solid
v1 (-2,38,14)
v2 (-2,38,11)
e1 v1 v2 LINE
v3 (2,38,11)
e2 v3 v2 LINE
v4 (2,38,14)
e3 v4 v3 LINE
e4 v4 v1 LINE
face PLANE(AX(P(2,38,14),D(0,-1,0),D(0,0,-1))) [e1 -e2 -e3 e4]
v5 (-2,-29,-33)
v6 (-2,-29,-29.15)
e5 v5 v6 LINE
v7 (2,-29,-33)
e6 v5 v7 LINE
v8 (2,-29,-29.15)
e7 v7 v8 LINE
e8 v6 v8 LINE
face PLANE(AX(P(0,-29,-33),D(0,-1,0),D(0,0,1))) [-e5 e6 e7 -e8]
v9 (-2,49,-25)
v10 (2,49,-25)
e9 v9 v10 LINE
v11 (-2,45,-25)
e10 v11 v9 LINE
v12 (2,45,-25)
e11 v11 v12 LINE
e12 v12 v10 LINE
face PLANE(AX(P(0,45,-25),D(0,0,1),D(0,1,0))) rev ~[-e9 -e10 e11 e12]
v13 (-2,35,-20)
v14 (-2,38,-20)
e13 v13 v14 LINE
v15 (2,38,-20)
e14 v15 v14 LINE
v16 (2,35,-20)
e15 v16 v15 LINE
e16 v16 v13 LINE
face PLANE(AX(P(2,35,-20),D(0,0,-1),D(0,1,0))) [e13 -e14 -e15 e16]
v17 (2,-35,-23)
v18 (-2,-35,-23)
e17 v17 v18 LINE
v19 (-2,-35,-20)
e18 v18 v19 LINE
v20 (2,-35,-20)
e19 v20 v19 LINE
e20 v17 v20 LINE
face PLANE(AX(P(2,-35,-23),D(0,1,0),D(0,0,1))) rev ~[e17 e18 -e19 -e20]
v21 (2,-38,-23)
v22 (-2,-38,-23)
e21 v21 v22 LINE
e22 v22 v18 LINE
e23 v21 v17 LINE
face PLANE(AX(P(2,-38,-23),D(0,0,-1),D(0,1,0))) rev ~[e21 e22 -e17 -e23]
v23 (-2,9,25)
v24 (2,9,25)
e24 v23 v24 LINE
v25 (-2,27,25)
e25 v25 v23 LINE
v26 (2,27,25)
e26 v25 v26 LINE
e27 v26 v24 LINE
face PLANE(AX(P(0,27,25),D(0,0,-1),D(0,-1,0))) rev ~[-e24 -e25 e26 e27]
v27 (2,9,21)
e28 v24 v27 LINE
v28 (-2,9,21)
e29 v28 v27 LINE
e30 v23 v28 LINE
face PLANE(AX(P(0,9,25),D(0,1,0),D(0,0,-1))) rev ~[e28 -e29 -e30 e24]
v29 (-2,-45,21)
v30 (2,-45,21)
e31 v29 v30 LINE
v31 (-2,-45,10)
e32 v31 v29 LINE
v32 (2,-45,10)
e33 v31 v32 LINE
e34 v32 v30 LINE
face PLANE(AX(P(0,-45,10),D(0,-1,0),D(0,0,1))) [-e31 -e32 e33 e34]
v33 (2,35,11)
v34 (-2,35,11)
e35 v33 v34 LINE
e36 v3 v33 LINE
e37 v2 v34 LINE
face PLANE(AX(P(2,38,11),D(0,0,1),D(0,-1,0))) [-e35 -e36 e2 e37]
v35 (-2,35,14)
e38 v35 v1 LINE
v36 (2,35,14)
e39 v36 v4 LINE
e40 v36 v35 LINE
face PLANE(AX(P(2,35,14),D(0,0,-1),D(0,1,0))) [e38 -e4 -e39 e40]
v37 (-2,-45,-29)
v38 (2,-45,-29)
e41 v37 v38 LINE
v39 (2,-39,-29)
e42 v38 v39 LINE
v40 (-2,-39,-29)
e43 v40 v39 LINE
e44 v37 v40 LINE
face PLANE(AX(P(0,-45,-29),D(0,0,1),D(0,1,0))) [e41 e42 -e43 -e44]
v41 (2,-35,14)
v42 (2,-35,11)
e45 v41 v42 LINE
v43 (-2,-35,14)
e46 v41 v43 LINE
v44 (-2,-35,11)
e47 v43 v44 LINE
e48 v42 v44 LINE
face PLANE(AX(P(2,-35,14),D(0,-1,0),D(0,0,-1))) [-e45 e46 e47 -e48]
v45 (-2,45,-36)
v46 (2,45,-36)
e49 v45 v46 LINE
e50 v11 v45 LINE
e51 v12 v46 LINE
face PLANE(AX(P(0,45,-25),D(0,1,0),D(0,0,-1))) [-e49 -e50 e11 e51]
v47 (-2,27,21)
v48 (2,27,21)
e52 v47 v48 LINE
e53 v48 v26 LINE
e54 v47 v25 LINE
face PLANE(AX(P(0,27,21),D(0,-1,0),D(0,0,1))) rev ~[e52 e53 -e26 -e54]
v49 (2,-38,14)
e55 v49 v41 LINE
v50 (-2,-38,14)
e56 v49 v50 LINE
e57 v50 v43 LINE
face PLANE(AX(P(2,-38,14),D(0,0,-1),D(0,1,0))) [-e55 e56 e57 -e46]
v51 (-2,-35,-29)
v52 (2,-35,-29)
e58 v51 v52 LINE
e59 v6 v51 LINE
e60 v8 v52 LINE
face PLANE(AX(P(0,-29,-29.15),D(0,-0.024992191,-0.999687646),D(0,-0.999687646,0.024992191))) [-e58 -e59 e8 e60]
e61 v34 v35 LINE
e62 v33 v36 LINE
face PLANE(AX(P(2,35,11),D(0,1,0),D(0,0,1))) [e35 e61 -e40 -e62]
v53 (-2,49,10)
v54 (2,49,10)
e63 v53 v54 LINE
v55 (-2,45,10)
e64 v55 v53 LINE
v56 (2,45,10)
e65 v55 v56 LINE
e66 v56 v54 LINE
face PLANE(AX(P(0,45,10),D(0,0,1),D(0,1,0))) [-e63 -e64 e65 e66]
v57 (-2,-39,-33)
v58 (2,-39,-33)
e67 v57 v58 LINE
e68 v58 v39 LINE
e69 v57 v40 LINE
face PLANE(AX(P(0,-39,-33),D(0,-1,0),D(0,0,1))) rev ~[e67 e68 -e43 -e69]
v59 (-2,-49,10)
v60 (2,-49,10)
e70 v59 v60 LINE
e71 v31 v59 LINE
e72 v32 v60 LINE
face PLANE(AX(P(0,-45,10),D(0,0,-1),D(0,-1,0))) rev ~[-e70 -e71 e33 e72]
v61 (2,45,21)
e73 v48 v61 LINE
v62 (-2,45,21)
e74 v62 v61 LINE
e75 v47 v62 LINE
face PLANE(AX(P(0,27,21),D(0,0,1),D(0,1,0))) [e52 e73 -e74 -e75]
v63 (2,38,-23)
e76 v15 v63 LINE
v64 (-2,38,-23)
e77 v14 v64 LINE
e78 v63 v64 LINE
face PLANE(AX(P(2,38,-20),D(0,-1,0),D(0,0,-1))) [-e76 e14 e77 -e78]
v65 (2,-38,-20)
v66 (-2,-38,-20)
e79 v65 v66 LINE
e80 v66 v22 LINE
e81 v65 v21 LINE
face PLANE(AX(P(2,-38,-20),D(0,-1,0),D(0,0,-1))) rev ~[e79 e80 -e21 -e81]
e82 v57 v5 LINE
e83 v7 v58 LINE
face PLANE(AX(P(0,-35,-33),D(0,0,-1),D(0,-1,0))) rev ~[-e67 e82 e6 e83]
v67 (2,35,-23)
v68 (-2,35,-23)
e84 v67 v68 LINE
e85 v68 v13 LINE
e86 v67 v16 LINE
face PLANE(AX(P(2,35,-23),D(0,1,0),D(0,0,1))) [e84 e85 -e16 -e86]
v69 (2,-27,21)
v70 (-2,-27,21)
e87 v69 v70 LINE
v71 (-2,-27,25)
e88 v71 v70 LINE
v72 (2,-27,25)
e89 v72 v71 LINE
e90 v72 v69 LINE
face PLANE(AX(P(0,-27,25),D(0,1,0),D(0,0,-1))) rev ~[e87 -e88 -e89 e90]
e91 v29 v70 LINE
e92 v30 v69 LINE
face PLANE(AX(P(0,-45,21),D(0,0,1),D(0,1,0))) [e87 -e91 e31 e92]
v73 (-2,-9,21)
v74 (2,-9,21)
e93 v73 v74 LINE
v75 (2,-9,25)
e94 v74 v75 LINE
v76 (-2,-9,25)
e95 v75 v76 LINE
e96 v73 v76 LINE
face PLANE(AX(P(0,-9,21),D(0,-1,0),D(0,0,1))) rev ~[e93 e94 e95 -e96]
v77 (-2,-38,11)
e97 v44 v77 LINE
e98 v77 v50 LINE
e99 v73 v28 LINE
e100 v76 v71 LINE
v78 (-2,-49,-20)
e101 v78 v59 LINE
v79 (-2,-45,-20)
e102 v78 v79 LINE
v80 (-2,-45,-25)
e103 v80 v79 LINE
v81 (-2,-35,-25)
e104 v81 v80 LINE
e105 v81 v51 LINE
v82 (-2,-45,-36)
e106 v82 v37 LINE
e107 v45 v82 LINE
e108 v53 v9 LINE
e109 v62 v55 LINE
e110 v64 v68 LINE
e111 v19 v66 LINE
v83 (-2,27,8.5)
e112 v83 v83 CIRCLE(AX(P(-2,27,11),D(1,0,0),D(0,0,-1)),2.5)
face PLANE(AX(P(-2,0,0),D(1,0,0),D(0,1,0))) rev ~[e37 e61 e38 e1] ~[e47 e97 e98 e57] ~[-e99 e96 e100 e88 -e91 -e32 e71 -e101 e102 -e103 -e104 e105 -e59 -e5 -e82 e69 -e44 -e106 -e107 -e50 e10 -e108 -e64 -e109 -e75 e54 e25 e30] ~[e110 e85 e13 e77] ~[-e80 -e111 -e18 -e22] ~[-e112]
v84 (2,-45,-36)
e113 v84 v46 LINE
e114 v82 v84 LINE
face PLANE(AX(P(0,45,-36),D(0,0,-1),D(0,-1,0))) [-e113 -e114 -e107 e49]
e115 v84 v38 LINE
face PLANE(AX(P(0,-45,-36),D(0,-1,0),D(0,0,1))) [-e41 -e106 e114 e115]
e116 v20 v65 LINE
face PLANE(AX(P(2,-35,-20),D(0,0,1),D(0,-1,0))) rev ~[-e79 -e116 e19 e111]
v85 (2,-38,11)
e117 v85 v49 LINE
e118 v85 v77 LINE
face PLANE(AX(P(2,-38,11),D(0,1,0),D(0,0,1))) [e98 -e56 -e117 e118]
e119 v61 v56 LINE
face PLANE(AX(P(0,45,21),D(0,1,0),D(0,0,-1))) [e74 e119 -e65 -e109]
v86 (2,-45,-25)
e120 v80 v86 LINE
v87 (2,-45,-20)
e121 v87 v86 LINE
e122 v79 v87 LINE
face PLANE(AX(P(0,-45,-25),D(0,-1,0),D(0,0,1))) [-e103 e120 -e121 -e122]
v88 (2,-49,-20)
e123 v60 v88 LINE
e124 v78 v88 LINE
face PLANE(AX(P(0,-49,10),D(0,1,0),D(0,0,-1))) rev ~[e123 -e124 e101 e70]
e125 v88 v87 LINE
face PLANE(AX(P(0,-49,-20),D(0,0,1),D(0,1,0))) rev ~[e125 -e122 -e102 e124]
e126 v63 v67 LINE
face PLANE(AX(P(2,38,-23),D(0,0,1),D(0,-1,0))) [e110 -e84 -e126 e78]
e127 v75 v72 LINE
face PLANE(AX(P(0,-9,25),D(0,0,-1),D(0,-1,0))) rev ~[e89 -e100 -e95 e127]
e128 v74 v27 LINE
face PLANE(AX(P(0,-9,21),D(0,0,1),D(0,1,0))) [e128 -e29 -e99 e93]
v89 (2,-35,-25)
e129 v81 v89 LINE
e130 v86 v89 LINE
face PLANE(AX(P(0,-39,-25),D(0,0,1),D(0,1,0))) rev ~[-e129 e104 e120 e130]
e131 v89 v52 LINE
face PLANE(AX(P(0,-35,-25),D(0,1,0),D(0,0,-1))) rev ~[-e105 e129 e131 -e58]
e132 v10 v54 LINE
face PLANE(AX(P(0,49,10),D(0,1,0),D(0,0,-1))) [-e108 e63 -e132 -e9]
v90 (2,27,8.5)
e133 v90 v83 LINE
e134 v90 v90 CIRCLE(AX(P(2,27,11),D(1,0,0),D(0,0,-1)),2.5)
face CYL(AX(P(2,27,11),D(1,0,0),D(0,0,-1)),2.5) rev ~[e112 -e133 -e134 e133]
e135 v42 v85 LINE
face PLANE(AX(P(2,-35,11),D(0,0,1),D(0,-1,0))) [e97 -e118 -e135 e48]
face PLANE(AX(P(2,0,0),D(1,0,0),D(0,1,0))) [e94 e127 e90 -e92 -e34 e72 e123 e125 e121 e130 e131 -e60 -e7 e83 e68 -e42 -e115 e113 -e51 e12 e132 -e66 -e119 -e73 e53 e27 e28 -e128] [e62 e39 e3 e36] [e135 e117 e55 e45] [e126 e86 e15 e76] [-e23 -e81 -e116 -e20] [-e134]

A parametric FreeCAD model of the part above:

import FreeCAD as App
import Part
import Sketcher

V = App.Vector
Q = App.Units.Quantity


def add_polygon(sketch, points):
    """Adds a closed chain of lines whose ends are joined by coincident constraints."""
    first, n = sketch.GeometryCount, len(points)
    for a, b in zip(points, points[1:] + points[:1]):
        sketch.addGeometry(Part.LineSegment(App.Vector(*a, 0), App.Vector(*b, 0)), False)
    for i in range(n):
        sketch.addConstraint(Sketcher.Constraint("Coincident", first + i, 2, first + (i + 1) % n, 1))

doc = App.newDocument("Part")
params = doc.addObject("Spreadsheet::Sheet", "Params")
for row, (alias, value) in enumerate([
    ("sketch1_width", "18 mm"),
    ("sketch1_width2", "4 mm"),
    ("sketch1_width3", "6 mm"),
    ("sketch1_height", "30 mm"),
    ("sketch1_height2", "7 mm"),
    ("pad1_length", "4 mm"),
    ("sketch2_diameter", "5 mm"),
    ("sketch2_width", "3 mm"),
    ("pocket1_length", "4 mm"),
], start=1):
    params.set(f"A{row}", alias)
    params.set(f"B{row}", "=" + value)
    params.setAlias(f"B{row}", alias)

body = doc.addObject("PartDesign::Body", "Body")

# Sketch on YZ plane
sketch1 = body.newObject("Sketcher::SketchObject", "Sketch")
sketch1.AttachmentSupport = (doc.getObject("YZ_Plane"), [""])
sketch1.MapMode = "FlatFace"
add_polygon(sketch1, [(-27, 21), (-45, 21), (-45, 10), (-49, 10), (-49, -20), (-45, -20), (-45, -25), (-35, -25), (-35, -29), (-29, -29.15), (-29, -33), (-39, -33), (-39, -29), (-45, -29), (-45, -36), (45, -36), (45, -25), (49, -25), (49, 10), (45, 10), (45, 21), (27, 21), (27, 25), (9, 25), (9, 21), (-9, 21), (-9, 25), (-27, 25)])  # lines 0-27
sketch1.addConstraint([
    Sketcher.Constraint("Horizontal", 0),
    Sketcher.Constraint("Vertical", 1),
    Sketcher.Constraint("Horizontal", 2),
    Sketcher.Constraint("Vertical", 3),
    Sketcher.Constraint("Horizontal", 4),
    Sketcher.Constraint("Vertical", 5),
    Sketcher.Constraint("Horizontal", 6),
    Sketcher.Constraint("Vertical", 7),
    Sketcher.Constraint("Vertical", 9),
    Sketcher.Constraint("Horizontal", 10),
    Sketcher.Constraint("Vertical", 11),
    Sketcher.Constraint("Horizontal", 12),
    Sketcher.Constraint("Vertical", 13),
    Sketcher.Constraint("Horizontal", 14),
    Sketcher.Constraint("Vertical", 15),
    Sketcher.Constraint("Horizontal", 16),
    Sketcher.Constraint("Vertical", 17),
    Sketcher.Constraint("Horizontal", 18),
    Sketcher.Constraint("Vertical", 19),
    Sketcher.Constraint("Horizontal", 20),
    Sketcher.Constraint("Vertical", 21),
    Sketcher.Constraint("Horizontal", 22),
    Sketcher.Constraint("Vertical", 23),
    Sketcher.Constraint("Horizontal", 24),
    Sketcher.Constraint("Vertical", 25),
    Sketcher.Constraint("Horizontal", 26),
    Sketcher.Constraint("Vertical", 27),
    Sketcher.Constraint("Symmetric", 5, 2, 15, 2, -2),
    Sketcher.Constraint("Symmetric", 2, 2, 17, 2, -2),
    Sketcher.Constraint("Symmetric", 0, 2, 19, 2, -2),
    Sketcher.Constraint("Symmetric", 22, 2, 25, 2, -2),
    Sketcher.Constraint("Horizontal", 7, 2, 11, 2),
    Sketcher.Constraint("Horizontal", 20, 2, 23, 2),
    Sketcher.Constraint("Vertical", 1, 2, 4, 2),
    Sketcher.Constraint("Vertical", 5, 2, 12, 2),
    Sketcher.Constraint("Equal", 6, 10),
    Sketcher.Constraint("Equal", 0, 20),
    Sketcher.Constraint("Equal", 20, 22),
    Sketcher.Constraint("Equal", 22, 24),
    Sketcher.Constraint("Equal", 18, 7),
    Sketcher.Constraint("Equal", 7, 11),
    Sketcher.Constraint("Equal", 1, 15),
    Sketcher.Constraint("Equal", 11, 21),
    Sketcher.Constraint("DistanceX", 0, 2, 0, 1, Q("18 mm")),
    Sketcher.Constraint("DistanceX", 2, 2, 2, 1, Q("4 mm")),
    Sketcher.Constraint("DistanceX", 12, 2, 12, 1, Q("6 mm")),
    Sketcher.Constraint("DistanceY", 3, 2, 3, 1, Q("30 mm")),
    Sketcher.Constraint("DistanceY", 13, 2, 13, 1, Q("7 mm")),
    Sketcher.Constraint("DistanceY", 3, 2, -1, 1, Q("20 mm")),
    Sketcher.Constraint("DistanceX", 3, 2, 8, 2, Q("20 mm")),
    Sketcher.Constraint("DistanceY", 14, 2, 19, 2, Q("57 mm")),
    Sketcher.Constraint("DistanceY", 8, 2, 7, 2, Q("0.15 mm")),
])
sketch1.setExpression("Constraints[71]", "Params.sketch1_width")
sketch1.setExpression("Constraints[72]", "Params.sketch1_width2")
sketch1.setExpression("Constraints[73]", "Params.sketch1_width3")
sketch1.setExpression("Constraints[74]", "Params.sketch1_height")
sketch1.setExpression("Constraints[75]", "Params.sketch1_height2")
pad1 = body.newObject("PartDesign::Pad", "Pad")
pad1.Profile = sketch1
pad1.setExpression("Length", "Params.pad1_length")
pad1.Midplane = True

# Sketch on YZ plane
sketch2 = body.newObject("Sketcher::SketchObject", "Sketch001")
sketch2.AttachmentSupport = (doc.getObject("YZ_Plane"), [""])
sketch2.MapMode = "FlatFace"
sketch2.AttachmentOffset = App.Placement(V(0, 0, 2), App.Rotation())
sketch2.addGeometry(Part.Circle(V(27, 11, 0), V(0, 0, 1), 2.5), False)  # 0
add_polygon(sketch2, [(38, 11), (38, 14), (35, 14), (35, 11)])  # lines 1-4
add_polygon(sketch2, [(-35, 11), (-35, 14), (-38, 14), (-38, 11)])  # lines 5-8
add_polygon(sketch2, [(-35, -20), (-38, -20), (-38, -23), (-35, -23)])  # lines 9-12
add_polygon(sketch2, [(38, -23), (38, -20), (35, -20), (35, -23)])  # lines 13-16
sketch2.addConstraint([
    Sketcher.Constraint("Vertical", 1),
    Sketcher.Constraint("Horizontal", 2),
    Sketcher.Constraint("Vertical", 3),
    Sketcher.Constraint("Horizontal", 4),
    Sketcher.Constraint("Vertical", 5),
    Sketcher.Constraint("Horizontal", 6),
    Sketcher.Constraint("Vertical", 7),
    Sketcher.Constraint("Horizontal", 8),
    Sketcher.Constraint("Horizontal", 9),
    Sketcher.Constraint("Vertical", 10),
    Sketcher.Constraint("Horizontal", 11),
    Sketcher.Constraint("Vertical", 12),
    Sketcher.Constraint("Vertical", 13),
    Sketcher.Constraint("Horizontal", 14),
    Sketcher.Constraint("Vertical", 15),
    Sketcher.Constraint("Horizontal", 16),
    Sketcher.Constraint("Symmetric", 2, 2, 5, 2, -2),
    Sketcher.Constraint("Symmetric", 4, 2, 7, 2, -2),
    Sketcher.Constraint("Symmetric", 9, 2, 13, 2, -2),
    Sketcher.Constraint("Symmetric", 11, 2, 15, 2, -2),
    Sketcher.Constraint("Horizontal", 0, 3, 3, 2),
    Sketcher.Constraint("Vertical", 7, 2, 9, 2),
    Sketcher.Constraint("Vertical", 8, 2, 11, 2),
    Sketcher.Constraint("Equal", 16, 1),
    Sketcher.Constraint("Equal", 7, 10),
    Sketcher.Constraint("Diameter", 0, Q("5 mm")),
    Sketcher.Constraint("DistanceX", 2, 2, 2, 1, Q("3 mm")),
    Sketcher.Constraint("DistanceY", -1, 1, 0, 3, Q("11 mm")),
    Sketcher.Constraint("DistanceX", 0, 3, 1, 2, Q("11 mm")),
    Sketcher.Constraint("DistanceX", -1, 1, 0, 3, Q("27 mm")),
    Sketcher.Constraint("DistanceY", 9, 2, -1, 1, Q("20 mm")),
])
sketch2.setExpression("Constraints[41]", "Params.sketch2_diameter")
sketch2.setExpression("Constraints[42]", "Params.sketch2_width")
pocket1 = body.newObject("PartDesign::Pocket", "Pocket")
pocket1.Profile = sketch2
pocket1.setExpression("Length", "Params.pocket1_length")

doc.recompute()
